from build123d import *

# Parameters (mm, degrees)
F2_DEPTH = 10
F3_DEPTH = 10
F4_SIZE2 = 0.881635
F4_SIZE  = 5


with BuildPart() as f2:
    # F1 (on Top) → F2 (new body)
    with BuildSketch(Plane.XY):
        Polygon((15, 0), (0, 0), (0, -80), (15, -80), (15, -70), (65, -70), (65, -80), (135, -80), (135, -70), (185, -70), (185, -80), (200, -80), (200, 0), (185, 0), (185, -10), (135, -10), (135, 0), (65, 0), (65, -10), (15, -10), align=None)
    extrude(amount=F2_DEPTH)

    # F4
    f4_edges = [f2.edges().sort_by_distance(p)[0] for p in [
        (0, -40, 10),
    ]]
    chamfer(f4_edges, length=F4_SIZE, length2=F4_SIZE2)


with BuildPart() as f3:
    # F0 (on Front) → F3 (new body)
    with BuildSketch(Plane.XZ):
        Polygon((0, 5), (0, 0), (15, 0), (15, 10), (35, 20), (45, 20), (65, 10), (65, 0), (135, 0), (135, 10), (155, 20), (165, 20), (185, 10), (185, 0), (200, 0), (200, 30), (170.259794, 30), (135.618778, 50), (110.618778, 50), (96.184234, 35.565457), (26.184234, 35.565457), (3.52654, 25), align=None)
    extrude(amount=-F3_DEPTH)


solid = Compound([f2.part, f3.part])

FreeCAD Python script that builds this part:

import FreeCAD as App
import Part
import Sketcher
from FreeCAD import Vector
Q = App.Units.Quantity


def edges_at(feature, points):
    """Names of the edges that pass closest to the given points."""
    edges = feature.Shape.Edges
    near = lambda p: min(range(len(edges)), key=lambda i: edges[i].distToShape(Part.Vertex(*p))[0])
    return sorted({f"Edge{near(p) + 1}" for p in points})


def add_polygon(sketch, points):
    """Adds a closed chain of lines whose ends are joined by coincident constraints."""
    first, n = sketch.GeometryCount, len(points)
    for a, b in zip(points, points[1:] + points[:1]):
        sketch.addGeometry(Part.LineSegment(App.Vector(*a, 0), App.Vector(*b, 0)), False)
    for i in range(n):
        sketch.addConstraint(Sketcher.Constraint("Coincident", first + i, 2, first + (i + 1) % n, 1))

doc = App.newDocument("Part")
params = doc.addObject("Spreadsheet::Sheet", "Params")
for row, (alias, value) in enumerate([
    ("sketch1_width", "15 mm"),
    ("sketch1_width2", "50 mm"),
    ("sketch1_width3", "70 mm"),
    ("sketch1_height", "80 mm"),
    ("sketch1_height2", "10 mm"),
    ("pad1_length", "10 mm"),
    ("chamfer_size", "5 mm"),
    ("chamfer_size2", "0.881635 mm"),
    ("sketch2_width", "15 mm"),
    ("sketch2_width2", "10 mm"),
    ("sketch2_width3", "70 mm"),
    ("sketch2_width4", "25 mm"),
    ("sketch2_height", "5 mm"),
    ("pad2_length", "10 mm"),
], start=1):
    params.set(f"A{row}", alias)
    params.set(f"B{row}", "=" + value)
    params.setAlias(f"B{row}", alias)

body = doc.addObject("PartDesign::Body", "Body")

# Sketch on XY plane
sketch1 = doc.addObject("Sketcher::SketchObject", "Sketch")
body.addObject(sketch1)
sketch1.AttachmentSupport = (doc.XY_Plane, [""])
sketch1.MapMode = "FlatFace"
add_polygon(sketch1, [(15, 0), (0, 0), (0, -80), (15, -80), (15, -70), (65, -70), (65, -80), (135, -80), (135, -70), (185, -70), (185, -80), (200, -80), (200, 0), (185, 0), (185, -10), (135, -10), (135, 0), (65, 0), (65, -10), (15, -10)])  # lines 0-19
sketch1.addConstraint(Sketcher.Constraint("Horizontal", 0))
sketch1.addConstraint(Sketcher.Constraint("Vertical", 1))
sketch1.addConstraint(Sketcher.Constraint("Horizontal", 2))
sketch1.addConstraint(Sketcher.Constraint("Vertical", 3))
sketch1.addConstraint(Sketcher.Constraint("Horizontal", 4))
sketch1.addConstraint(Sketcher.Constraint("Vertical", 5))
sketch1.addConstraint(Sketcher.Constraint("Horizontal", 6))
sketch1.addConstraint(Sketcher.Constraint("Vertical", 7))
sketch1.addConstraint(Sketcher.Constraint("Horizontal", 8))
sketch1.addConstraint(Sketcher.Constraint("Vertical", 9))
sketch1.addConstraint(Sketcher.Constraint("Horizontal", 10))
sketch1.addConstraint(Sketcher.Constraint("Vertical", 11))
sketch1.addConstraint(Sketcher.Constraint("Horizontal", 12))
sketch1.addConstraint(Sketcher.Constraint("Vertical", 13))
sketch1.addConstraint(Sketcher.Constraint("Horizontal", 14))
sketch1.addConstraint(Sketcher.Constraint("Vertical", 15))
sketch1.addConstraint(Sketcher.Constraint("Horizontal", 16))
sketch1.addConstraint(Sketcher.Constraint("Vertical", 17))
sketch1.addConstraint(Sketcher.Constraint("Horizontal", 18))
sketch1.addConstraint(Sketcher.Constraint("Vertical", 19))
sketch1.addConstraint(Sketcher.Constraint("Coincident", 0, 2, -1, 1))
sketch1.addConstraint(Sketcher.Constraint("PointOnObject", 11, 2, -1))
sketch1.addConstraint(Sketcher.Constraint("PointOnObject", 15, 2, -1))
sketch1.addConstraint(Sketcher.Constraint("Horizontal", 2, 2, 5, 2))
sketch1.addConstraint(Sketcher.Constraint("Horizontal", 4, 2, 7, 2))
sketch1.addConstraint(Sketcher.Constraint("Horizontal", 6, 2, 9, 2))
sketch1.addConstraint(Sketcher.Constraint("Horizontal", 14, 2, 17, 2))
sketch1.addConstraint(Sketcher.Constraint("Vertical", 9, 2, 12, 2))
sketch1.addConstraint(Sketcher.Constraint("Vertical", 7, 2, 14, 2))
sketch1.addConstraint(Sketcher.Constraint("Vertical", 5, 2, 16, 2))
sketch1.addConstraint(Sketcher.Constraint("Vertical", 3, 2, 18, 2))
sketch1.addConstraint(Sketcher.Constraint("Equal", 4, 8))
sketch1.addConstraint(Sketcher.Constraint("Equal", 2, 10))
sketch1.addConstraint(Sketcher.Constraint("Equal", 9, 13))
sketch1.addConstraint(Sketcher.Constraint("DistanceX", 0, 2, 0, 1, 15.0))
sketch1.addConstraint(Sketcher.Constraint("DistanceX", 4, 1, 4, 2, 50.0))
sketch1.addConstraint(Sketcher.Constraint("DistanceX", 6, 1, 6, 2, 70.0))
sketch1.addConstraint(Sketcher.Constraint("DistanceY", 1, 2, 1, 1, 80.0))
sketch1.addConstraint(Sketcher.Constraint("DistanceY", 3, 1, 3, 2, 10.0))
sketch1.setExpression("Constraints[54]", "Params.sketch1_width")
sketch1.setExpression("Constraints[55]", "Params.sketch1_width2")
sketch1.setExpression("Constraints[56]", "Params.sketch1_width3")
sketch1.setExpression("Constraints[57]", "Params.sketch1_height")
sketch1.setExpression("Constraints[58]", "Params.sketch1_height2")
pad1 = doc.addObject("PartDesign::Pad", "Pad")
body.addObject(pad1)
pad1.Profile = sketch1
pad1.setExpression("Length", "Params.pad1_length")
doc.recompute()

chamfer = doc.addObject("PartDesign::Chamfer", "Chamfer")
body.addObject(chamfer)
chamfer.Base = (pad1, edges_at(pad1, [(0, -40, 10)]))
chamfer.ChamferType = "Two distances"
chamfer.setExpression("Size", "Params.chamfer_size")
chamfer.setExpression("Size2", "Params.chamfer_size2")
body2 = doc.addObject("PartDesign::Body", "Body001")

# Sketch on XZ plane
sketch2 = doc.addObject("Sketcher::SketchObject", "Sketch001")
body2.addObject(sketch2)
sketch2.AttachmentSupport = (doc.getObject("XZ_Plane001"), [""])
sketch2.MapMode = "FlatFace"
add_polygon(sketch2, [(0, 5), (0, 0), (15, 0), (15, 10), (35, 20), (45, 20), (65, 10), (65, 0), (135, 0), (135, 10), (155, 20), (165, 20), (185, 10), (185, 0), (200, 0), (200, 30), (170, 30), (136, 50), (111, 50), (96, 36), (26, 36), (4, 25)])  # lines 0-21
sketch2.addConstraint(Sketcher.Constraint("Vertical", 0))
sketch2.addConstraint(Sketcher.Constraint("Horizontal", 1))
sketch2.addConstraint(Sketcher.Constraint("Vertical", 2))
sketch2.addConstraint(Sketcher.Constraint("Horizontal", 4))
sketch2.addConstraint(Sketcher.Constraint("Vertical", 6))
sketch2.addConstraint(Sketcher.Constraint("Horizontal", 7))
sketch2.addConstraint(Sketcher.Constraint("Vertical", 8))
sketch2.addConstraint(Sketcher.Constraint("Horizontal", 10))
sketch2.addConstraint(Sketcher.Constraint("Vertical", 12))
sketch2.addConstraint(Sketcher.Constraint("Horizontal", 13))
sketch2.addConstraint(Sketcher.Constraint("Vertical", 14))
sketch2.addConstraint(Sketcher.Constraint("Horizontal", 15))
sketch2.addConstraint(Sketcher.Constraint("Horizontal", 17))
sketch2.addConstraint(Sketcher.Constraint("Horizontal", 19))
sketch2.addConstraint(Sketcher.Constraint("Coincident", 0, 2, -1, 1))
sketch2.addConstraint(Sketcher.Constraint("PointOnObject", 6, 2, -1))
sketch2.addConstraint(Sketcher.Constraint("PointOnObject", 12, 2, -1))
sketch2.addConstraint(Sketcher.Constraint("Parallel", 3, 9))
sketch2.addConstraint(Sketcher.Constraint("Parallel", 5, 11))
sketch2.addConstraint(Sketcher.Constraint("Horizontal", 2, 2, 5, 2))
sketch2.addConstraint(Sketcher.Constraint("Horizontal", 5, 2, 8, 2))
sketch2.addConstraint(Sketcher.Constraint("Horizontal", 4, 2, 9, 2))
sketch2.addConstraint(Sketcher.Constraint("Horizontal", 8, 2, 11, 2))
sketch2.addConstraint(Sketcher.Constraint("Equal", 4, 10))
sketch2.addConstraint(Sketcher.Constraint("Equal", 1, 13))
sketch2.addConstraint(Sketcher.Constraint("Equal", 7, 19))
sketch2.addConstraint(Sketcher.Constraint("Equal", 10, 2))
sketch2.addConstraint(Sketcher.Constraint("Equal", 3, 5))
sketch2.addConstraint(Sketcher.Constraint("DistanceX", 1, 1, 1, 2, 15.0))
sketch2.addConstraint(Sketcher.Constraint("DistanceX", 4, 1, 4, 2, 10.0))
sketch2.addConstraint(Sketcher.Constraint("DistanceX", 7, 1, 7, 2, 70.0))
sketch2.addConstraint(Sketcher.Constraint("DistanceX", 17, 2, 17, 1, 25.0))
sketch2.addConstraint(Sketcher.Constraint("DistanceY", 0, 2, 0, 1, 5.0))
sketch2.addConstraint(Sketcher.Constraint("DistanceY", 14, 1, 14, 2, 30.0))
sketch2.addConstraint(Sketcher.Constraint("Angle", 16, Q("150 deg")))
sketch2.addConstraint(Sketcher.Constraint("Angle", 18, Q("-135.000002 deg")))
sketch2.addConstraint(Sketcher.Constraint("Angle", 20, Q("-154.999998 deg")))
sketch2.addConstraint(Sketcher.Constraint("Angle", 21, Q("-100.000001 deg")))
sketch2.addConstraint(Sketcher.Constraint("Distance", 16, 40.0))
sketch2.addConstraint(Sketcher.Constraint("Distance", 20, 25.0))
sketch2.addConstraint(Sketcher.Constraint("DistanceX", -1, 1, 3, 2, 35.0))
sketch2.addConstraint(Sketcher.Constraint("DistanceY", -1, 1, 3, 2, 20.0))
sketch2.addConstraint(Sketcher.Constraint("DistanceY", -1, 1, 20, 2, 25.0))
sketch2.setExpression("Constraints[50]", "Params.sketch2_width")
sketch2.setExpression("Constraints[51]", "Params.sketch2_width2")
sketch2.setExpression("Constraints[52]", "Params.sketch2_width3")
sketch2.setExpression("Constraints[53]", "Params.sketch2_width4")
sketch2.setExpression("Constraints[54]", "Params.sketch2_height")
pad2 = doc.addObject("PartDesign::Pad", "Pad001")
body2.addObject(pad2)
pad2.Profile = sketch2
pad2.setExpression("Length", "Params.pad2_length")
pad2.Reversed = True

doc.recompute()
